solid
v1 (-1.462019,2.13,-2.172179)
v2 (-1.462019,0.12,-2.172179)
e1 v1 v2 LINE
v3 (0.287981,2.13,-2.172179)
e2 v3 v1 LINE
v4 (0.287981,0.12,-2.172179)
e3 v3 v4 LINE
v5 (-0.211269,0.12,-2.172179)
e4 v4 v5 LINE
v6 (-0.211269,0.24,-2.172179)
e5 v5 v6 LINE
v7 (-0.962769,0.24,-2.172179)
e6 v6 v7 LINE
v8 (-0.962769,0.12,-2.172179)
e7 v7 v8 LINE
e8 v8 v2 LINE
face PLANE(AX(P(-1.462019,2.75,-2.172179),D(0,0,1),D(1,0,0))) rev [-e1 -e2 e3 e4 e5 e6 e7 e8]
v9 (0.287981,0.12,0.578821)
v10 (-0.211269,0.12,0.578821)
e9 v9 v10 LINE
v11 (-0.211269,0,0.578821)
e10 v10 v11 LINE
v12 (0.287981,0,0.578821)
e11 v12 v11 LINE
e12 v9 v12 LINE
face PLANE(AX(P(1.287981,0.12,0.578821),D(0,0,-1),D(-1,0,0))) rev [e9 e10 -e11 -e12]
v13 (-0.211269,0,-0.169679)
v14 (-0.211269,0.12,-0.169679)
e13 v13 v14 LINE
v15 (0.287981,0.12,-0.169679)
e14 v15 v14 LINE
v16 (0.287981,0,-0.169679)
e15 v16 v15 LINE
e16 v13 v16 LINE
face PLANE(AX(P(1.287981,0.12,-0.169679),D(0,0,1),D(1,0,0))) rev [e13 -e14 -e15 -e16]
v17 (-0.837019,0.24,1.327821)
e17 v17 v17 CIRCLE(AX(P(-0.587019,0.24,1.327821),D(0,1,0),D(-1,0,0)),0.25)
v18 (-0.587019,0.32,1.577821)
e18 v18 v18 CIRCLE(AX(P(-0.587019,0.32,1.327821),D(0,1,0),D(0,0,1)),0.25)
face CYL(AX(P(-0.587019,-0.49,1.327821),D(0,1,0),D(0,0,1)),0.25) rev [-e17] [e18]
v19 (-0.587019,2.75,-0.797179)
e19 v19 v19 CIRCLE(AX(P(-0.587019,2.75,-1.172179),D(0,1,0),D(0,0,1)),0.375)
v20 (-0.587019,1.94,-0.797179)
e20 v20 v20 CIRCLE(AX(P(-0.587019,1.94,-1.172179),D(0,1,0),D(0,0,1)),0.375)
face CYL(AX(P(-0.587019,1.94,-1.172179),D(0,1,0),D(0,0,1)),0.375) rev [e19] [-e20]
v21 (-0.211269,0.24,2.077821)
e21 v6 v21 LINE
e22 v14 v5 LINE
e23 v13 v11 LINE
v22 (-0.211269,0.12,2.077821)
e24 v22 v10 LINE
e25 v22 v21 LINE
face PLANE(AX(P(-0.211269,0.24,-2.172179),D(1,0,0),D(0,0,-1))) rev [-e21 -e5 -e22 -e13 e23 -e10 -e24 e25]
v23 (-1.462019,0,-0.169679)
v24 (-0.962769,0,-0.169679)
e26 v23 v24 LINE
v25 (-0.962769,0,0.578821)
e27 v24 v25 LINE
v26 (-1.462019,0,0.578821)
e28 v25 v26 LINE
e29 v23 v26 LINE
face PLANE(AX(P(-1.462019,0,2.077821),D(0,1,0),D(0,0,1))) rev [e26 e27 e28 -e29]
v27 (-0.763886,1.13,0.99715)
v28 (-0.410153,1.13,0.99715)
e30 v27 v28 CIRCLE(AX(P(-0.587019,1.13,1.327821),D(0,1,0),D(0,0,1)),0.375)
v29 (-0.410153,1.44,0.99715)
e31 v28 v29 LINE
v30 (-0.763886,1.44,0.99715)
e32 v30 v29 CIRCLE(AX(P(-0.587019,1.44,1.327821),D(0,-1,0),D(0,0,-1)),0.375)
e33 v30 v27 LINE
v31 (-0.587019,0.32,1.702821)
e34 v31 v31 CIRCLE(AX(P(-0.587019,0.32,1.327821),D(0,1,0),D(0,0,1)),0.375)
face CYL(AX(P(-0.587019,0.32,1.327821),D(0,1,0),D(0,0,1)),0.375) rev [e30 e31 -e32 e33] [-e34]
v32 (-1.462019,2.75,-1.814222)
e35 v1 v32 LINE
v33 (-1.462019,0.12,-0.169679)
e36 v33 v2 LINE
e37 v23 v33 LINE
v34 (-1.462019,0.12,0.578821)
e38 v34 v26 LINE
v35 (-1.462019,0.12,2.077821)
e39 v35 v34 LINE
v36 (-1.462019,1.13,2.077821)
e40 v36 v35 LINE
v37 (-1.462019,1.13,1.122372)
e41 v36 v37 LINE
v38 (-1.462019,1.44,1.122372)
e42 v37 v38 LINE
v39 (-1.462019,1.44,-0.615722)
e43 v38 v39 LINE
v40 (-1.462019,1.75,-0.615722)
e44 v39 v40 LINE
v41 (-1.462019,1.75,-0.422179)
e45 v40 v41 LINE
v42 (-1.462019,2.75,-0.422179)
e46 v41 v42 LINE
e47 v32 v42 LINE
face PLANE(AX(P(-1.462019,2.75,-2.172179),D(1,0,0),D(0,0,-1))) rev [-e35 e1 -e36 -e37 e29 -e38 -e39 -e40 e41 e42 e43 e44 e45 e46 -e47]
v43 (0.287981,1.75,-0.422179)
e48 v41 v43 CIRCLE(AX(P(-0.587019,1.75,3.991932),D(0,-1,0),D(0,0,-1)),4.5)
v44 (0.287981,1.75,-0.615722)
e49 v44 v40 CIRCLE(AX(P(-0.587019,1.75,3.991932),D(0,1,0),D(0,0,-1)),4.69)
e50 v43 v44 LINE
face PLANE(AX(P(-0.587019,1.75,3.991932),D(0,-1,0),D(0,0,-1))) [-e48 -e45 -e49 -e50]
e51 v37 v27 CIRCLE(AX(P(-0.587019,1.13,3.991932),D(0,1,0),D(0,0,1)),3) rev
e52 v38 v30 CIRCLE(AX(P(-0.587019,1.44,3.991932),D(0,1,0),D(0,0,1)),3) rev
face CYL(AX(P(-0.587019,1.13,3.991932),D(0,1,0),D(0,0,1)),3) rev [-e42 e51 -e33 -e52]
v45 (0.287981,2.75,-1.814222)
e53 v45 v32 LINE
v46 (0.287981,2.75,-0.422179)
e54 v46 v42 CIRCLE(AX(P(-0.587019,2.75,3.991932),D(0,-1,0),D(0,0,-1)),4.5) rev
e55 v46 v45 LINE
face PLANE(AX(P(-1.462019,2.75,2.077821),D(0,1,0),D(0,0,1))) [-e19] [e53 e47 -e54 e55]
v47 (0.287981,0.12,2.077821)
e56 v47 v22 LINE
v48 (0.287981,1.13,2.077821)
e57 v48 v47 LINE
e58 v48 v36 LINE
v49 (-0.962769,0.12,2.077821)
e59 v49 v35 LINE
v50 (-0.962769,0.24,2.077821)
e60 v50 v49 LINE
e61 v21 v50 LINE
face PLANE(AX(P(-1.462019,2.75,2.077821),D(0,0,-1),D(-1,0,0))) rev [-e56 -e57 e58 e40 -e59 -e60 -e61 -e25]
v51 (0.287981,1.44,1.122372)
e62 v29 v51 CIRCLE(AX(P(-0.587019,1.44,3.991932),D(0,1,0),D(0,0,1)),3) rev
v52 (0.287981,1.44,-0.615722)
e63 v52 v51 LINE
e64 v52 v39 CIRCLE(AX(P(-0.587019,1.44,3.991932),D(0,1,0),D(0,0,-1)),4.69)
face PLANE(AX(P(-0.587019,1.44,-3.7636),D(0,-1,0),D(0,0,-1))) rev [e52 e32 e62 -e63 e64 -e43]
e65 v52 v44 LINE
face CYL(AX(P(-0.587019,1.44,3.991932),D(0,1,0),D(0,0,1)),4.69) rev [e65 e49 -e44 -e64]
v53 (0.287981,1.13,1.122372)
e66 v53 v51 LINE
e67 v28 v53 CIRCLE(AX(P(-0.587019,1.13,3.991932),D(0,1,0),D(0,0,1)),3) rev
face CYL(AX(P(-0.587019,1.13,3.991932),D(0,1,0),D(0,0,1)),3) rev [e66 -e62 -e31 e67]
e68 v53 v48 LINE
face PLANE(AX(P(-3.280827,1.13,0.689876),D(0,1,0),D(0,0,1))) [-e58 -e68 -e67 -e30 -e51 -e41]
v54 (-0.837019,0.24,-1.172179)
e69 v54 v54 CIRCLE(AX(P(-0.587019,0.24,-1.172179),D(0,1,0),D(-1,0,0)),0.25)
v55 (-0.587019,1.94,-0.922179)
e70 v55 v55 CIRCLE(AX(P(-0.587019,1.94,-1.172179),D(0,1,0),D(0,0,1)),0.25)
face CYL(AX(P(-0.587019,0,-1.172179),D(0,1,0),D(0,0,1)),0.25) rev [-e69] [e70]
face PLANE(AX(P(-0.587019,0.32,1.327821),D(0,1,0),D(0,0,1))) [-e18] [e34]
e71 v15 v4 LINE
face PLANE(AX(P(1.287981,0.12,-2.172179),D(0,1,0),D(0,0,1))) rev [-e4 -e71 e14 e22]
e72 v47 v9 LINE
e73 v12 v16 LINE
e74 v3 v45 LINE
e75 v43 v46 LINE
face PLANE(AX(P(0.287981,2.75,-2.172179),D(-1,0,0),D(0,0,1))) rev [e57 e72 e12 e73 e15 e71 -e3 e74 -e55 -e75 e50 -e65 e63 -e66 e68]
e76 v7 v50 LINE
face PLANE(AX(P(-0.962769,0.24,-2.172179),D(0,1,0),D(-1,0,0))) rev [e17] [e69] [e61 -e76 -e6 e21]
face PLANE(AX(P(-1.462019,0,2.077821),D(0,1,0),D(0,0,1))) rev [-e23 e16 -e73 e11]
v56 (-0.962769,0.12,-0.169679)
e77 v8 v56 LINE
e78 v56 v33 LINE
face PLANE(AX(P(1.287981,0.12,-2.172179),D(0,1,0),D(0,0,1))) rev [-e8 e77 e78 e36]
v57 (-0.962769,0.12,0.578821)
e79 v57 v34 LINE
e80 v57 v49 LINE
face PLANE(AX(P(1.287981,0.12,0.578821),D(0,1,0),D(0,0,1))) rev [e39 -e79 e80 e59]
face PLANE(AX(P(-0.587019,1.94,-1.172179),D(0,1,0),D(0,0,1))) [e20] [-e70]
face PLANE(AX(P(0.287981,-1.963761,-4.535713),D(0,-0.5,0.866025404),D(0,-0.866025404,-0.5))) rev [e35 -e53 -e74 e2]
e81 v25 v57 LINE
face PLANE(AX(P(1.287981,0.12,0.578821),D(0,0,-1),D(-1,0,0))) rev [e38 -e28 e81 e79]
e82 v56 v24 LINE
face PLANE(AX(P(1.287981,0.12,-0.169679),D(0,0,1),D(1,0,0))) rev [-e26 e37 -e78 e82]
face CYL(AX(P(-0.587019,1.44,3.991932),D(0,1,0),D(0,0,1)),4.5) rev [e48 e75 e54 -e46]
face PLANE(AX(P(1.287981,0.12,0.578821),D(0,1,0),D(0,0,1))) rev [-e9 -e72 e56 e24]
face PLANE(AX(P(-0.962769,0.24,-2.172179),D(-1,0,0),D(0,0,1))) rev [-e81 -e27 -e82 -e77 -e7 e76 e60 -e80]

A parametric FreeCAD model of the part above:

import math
import FreeCAD as App
import Part
import Sketcher

V = App.Vector
Q = App.Units.Quantity

doc = App.newDocument("Part")
body = doc.addObject("PartDesign::Body", "Body")

sketch1 = doc.addObject("Sketcher::SketchObject", "Sketch")
body.addObject(sketch1)
sketch1.AttachmentSupport = (doc.XZ_Plane, [""])
sketch1.MapMode = "FlatFace"
sketch1.addGeometry(Part.LineSegment(V(-1.5, -2.2, 0), V(-1.5, 2.1, 0)), False)
sketch1.addGeometry(Part.LineSegment(V(-1.5, 2.1, 0), V(0.3, 2.1, 0)), False)
sketch1.addGeometry(Part.LineSegment(V(0.3, 2.1, 0), V(0.3, -2.2, 0)), False)
sketch1.addGeometry(Part.LineSegment(V(0.3, -2.2, 0), V(-1.5, -2.2, 0)), False)
sketch1.addConstraint(Sketcher.Constraint("Coincident", 0, 2, 1, 1))
sketch1.addConstraint(Sketcher.Constraint("Coincident", 1, 2, 2, 1))
sketch1.addConstraint(Sketcher.Constraint("Coincident", 2, 2, 3, 1))
sketch1.addConstraint(Sketcher.Constraint("Coincident", 3, 2, 0, 1))
sketch1.addConstraint(Sketcher.Constraint("Vertical", 0))
sketch1.addConstraint(Sketcher.Constraint("Horizontal", 1))
sketch1.addConstraint(Sketcher.Constraint("Vertical", 2))
sketch1.addConstraint(Sketcher.Constraint("Horizontal", 3))
sketch1.addConstraint(Sketcher.Constraint("DistanceX", 1, 1, 1, 2, Q("1.75 mm")))
sketch1.addConstraint(Sketcher.Constraint("DistanceY", 0, 1, 0, 2, Q("4.25 mm")))
sketch1.addConstraint(Sketcher.Constraint("DistanceX", 0, 2, -1, 1, Q("1.462019 mm")))
sketch1.addConstraint(Sketcher.Constraint("DistanceY", -1, 1, 0, 2, Q("2.077821 mm")))
pad1 = doc.addObject("PartDesign::Pad", "Pad")
body.addObject(pad1)
pad1.Profile = sketch1
pad1.Length = 2.75
pad1.Reversed = True

sketch2 = doc.addObject("Sketcher::SketchObject", "Sketch001")
body.addObject(sketch2)
sketch2.AttachmentSupport = (doc.YZ_Plane, [""])
sketch2.MapMode = "FlatFace"
sketch2.AttachmentOffset = App.Placement(V(0, 0, -1.462019), App.Rotation())
sketch2.addGeometry(Part.LineSegment(V(0.12, -2.17, 0), V(0, -2.17, 0)), False)
sketch2.addGeometry(Part.LineSegment(V(0, -2.17, 0), V(0, -0.17, 0)), False)
sketch2.addGeometry(Part.LineSegment(V(0, -0.17, 0), V(0.12, -0.17, 0)), False)
sketch2.addGeometry(Part.LineSegment(V(0.12, -0.17, 0), V(0.12, -2.17, 0)), False)
sketch2.addConstraint(Sketcher.Constraint("Coincident", 0, 2, 1, 1))
sketch2.addConstraint(Sketcher.Constraint("Coincident", 1, 2, 2, 1))
sketch2.addConstraint(Sketcher.Constraint("Coincident", 2, 2, 3, 1))
sketch2.addConstraint(Sketcher.Constraint("Coincident", 3, 2, 0, 1))
sketch2.addConstraint(Sketcher.Constraint("Horizontal", 0))
sketch2.addConstraint(Sketcher.Constraint("Vertical", 1))
sketch2.addConstraint(Sketcher.Constraint("Horizontal", 2))
sketch2.addConstraint(Sketcher.Constraint("Vertical", 3))
sketch2.addConstraint(Sketcher.Constraint("PointOnObject", 0, 2, -2))
sketch2.addConstraint(Sketcher.Constraint("DistanceX", 0, 2, 0, 1, Q("0.12 mm")))
sketch2.addConstraint(Sketcher.Constraint("DistanceY", 1, 1, 1, 2, Q("2.0025 mm")))
sketch2.addConstraint(Sketcher.Constraint("DistanceY", 0, 2, -1, 1, Q("2.172179 mm")))
pocket1 = doc.addObject("PartDesign::Pocket", "Pocket")
body.addObject(pocket1)
pocket1.Profile = sketch2
pocket1.Length = 2.75
pocket1.Reversed = True

sketch3 = doc.addObject("Sketcher::SketchObject", "Sketch002")
body.addObject(sketch3)
sketch3.AttachmentSupport = (doc.YZ_Plane, [""])
sketch3.MapMode = "FlatFace"
sketch3.AttachmentOffset = App.Placement(V(0, 0, -1.462019), App.Rotation())
sketch3.addGeometry(Part.LineSegment(V(0.12, 0.58, 0), V(0, 0.58, 0)), False)
sketch3.addGeometry(Part.LineSegment(V(0, 0.58, 0), V(0, 2.08, 0)), False)
sketch3.addGeometry(Part.LineSegment(V(0, 2.08, 0), V(0.12, 2.08, 0)), False)
sketch3.addGeometry(Part.LineSegment(V(0.12, 2.08, 0), V(0.12, 0.58, 0)), False)
sketch3.addConstraint(Sketcher.Constraint("Coincident", 0, 2, 1, 1))
sketch3.addConstraint(Sketcher.Constraint("Coincident", 1, 2, 2, 1))
sketch3.addConstraint(Sketcher.Constraint("Coincident", 2, 2, 3, 1))
sketch3.addConstraint(Sketcher.Constraint("Coincident", 3, 2, 0, 1))
sketch3.addConstraint(Sketcher.Constraint("Horizontal", 0))
sketch3.addConstraint(Sketcher.Constraint("Vertical", 1))
sketch3.addConstraint(Sketcher.Constraint("Horizontal", 2))
sketch3.addConstraint(Sketcher.Constraint("Vertical", 3))
sketch3.addConstraint(Sketcher.Constraint("PointOnObject", 0, 2, -2))
sketch3.addConstraint(Sketcher.Constraint("DistanceX", 0, 2, 0, 1, Q("0.12 mm")))
sketch3.addConstraint(Sketcher.Constraint("DistanceY", 1, 1, 1, 2, Q("1.499 mm")))
sketch3.addConstraint(Sketcher.Constraint("DistanceY", -1, 1, 0, 2, Q("0.578821 mm")))
pocket2 = doc.addObject("PartDesign::Pocket", "Pocket001")
body.addObject(pocket2)
pocket2.Profile = sketch3
pocket2.Length = 2.75
pocket2.Reversed = True

sketch4 = doc.addObject("Sketcher::SketchObject", "Sketch003")
body.addObject(sketch4)
sketch4.AttachmentSupport = (doc.XY_Plane, [""])
sketch4.MapMode = "FlatFace"
sketch4.AttachmentOffset = App.Placement(V(0, 0, 2.077821), App.Rotation())
sketch4.addGeometry(Part.LineSegment(V(-0.96, 0.24, 0), V(-0.96, 0, 0)), False)
sketch4.addGeometry(Part.LineSegment(V(-0.96, 0, 0), V(-0.21, 0, 0)), False)
sketch4.addGeometry(Part.LineSegment(V(-0.21, 0, 0), V(-0.21, 0.24, 0)), False)
sketch4.addGeometry(Part.LineSegment(V(-0.21, 0.24, 0), V(-0.96, 0.24, 0)), False)
sketch4.addConstraint(Sketcher.Constraint("Coincident", 0, 2, 1, 1))
sketch4.addConstraint(Sketcher.Constraint("Coincident", 1, 2, 2, 1))
sketch4.addConstraint(Sketcher.Constraint("Coincident", 2, 2, 3, 1))
sketch4.addConstraint(Sketcher.Constraint("Coincident", 3, 2, 0, 1))
sketch4.addConstraint(Sketcher.Constraint("Vertical", 0))
sketch4.addConstraint(Sketcher.Constraint("Horizontal", 1))
sketch4.addConstraint(Sketcher.Constraint("Vertical", 2))
sketch4.addConstraint(Sketcher.Constraint("Horizontal", 3))
sketch4.addConstraint(Sketcher.Constraint("PointOnObject", 0, 2, -1))
sketch4.addConstraint(Sketcher.Constraint("DistanceY", 0, 2, 0, 1, Q("0.24 mm")))
sketch4.addConstraint(Sketcher.Constraint("DistanceX", 1, 1, 1, 2, Q("0.7515 mm")))
sketch4.addConstraint(Sketcher.Constraint("DistanceX", 0, 2, -1, 1, Q("0.962769 mm")))
pocket3 = doc.addObject("PartDesign::Pocket", "Pocket002")
body.addObject(pocket3)
pocket3.Profile = sketch4
pocket3.Type = "ThroughAll"

sketch5 = doc.addObject("Sketcher::SketchObject", "Sketch004")
body.addObject(sketch5)
sketch5.AttachmentSupport = (doc.XZ_Plane, [""])
sketch5.MapMode = "FlatFace"
sketch5.AttachmentOffset = App.Placement(V(0, 0, -2.75), App.Rotation())
sketch5.addGeometry(Part.ArcOfCircle(Part.Circle(V(-0.6, 4, 0), V(0, 0, 1), 4.5), math.radians(-101), math.radians(-79)), False)
sketch5.addGeometry(Part.LineSegment(V(-1.5, -0.4, 0), V(-1.5, 2.1, 0)), False)
sketch5.addGeometry(Part.LineSegment(V(-1.5, 2.1, 0), V(0.3, 2.1, 0)), False)
sketch5.addGeometry(Part.LineSegment(V(0.3, 2.1, 0), V(0.3, -0.4, 0)), False)
sketch5.addConstraint(Sketcher.Constraint("Coincident", 0, 1, 1, 1))
sketch5.addConstraint(Sketcher.Constraint("Coincident", 1, 2, 2, 1))
sketch5.addConstraint(Sketcher.Constraint("Coincident", 2, 2, 3, 1))
sketch5.addConstraint(Sketcher.Constraint("Coincident", 3, 2, 0, 2))
sketch5.addConstraint(Sketcher.Constraint("Vertical", 1))
sketch5.addConstraint(Sketcher.Constraint("Horizontal", 2))
sketch5.addConstraint(Sketcher.Constraint("Vertical", 3))
sketch5.addConstraint(Sketcher.Constraint("Horizontal", 0, 1, 3, 2))
sketch5.addConstraint(Sketcher.Constraint("Radius", 0, Q("4.5 mm")))
sketch5.addConstraint(Sketcher.Constraint("DistanceY", 1, 1, 1, 2, Q("2.5 mm")))
sketch5.addConstraint(Sketcher.Constraint("DistanceX", 2, 1, 2, 2, Q("1.75 mm")))
sketch5.addConstraint(Sketcher.Constraint("DistanceX", 0, 3, -1, 1, Q("0.587019 mm")))
sketch5.addConstraint(Sketcher.Constraint("DistanceY", -1, 1, 0, 3, Q("3.991932 mm")))
pocket4 = doc.addObject("PartDesign::Pocket", "Pocket003")
body.addObject(pocket4)
pocket4.Profile = sketch5
pocket4.Length = 1.31
pocket4.Reversed = True

sketch6 = doc.addObject("Sketcher::SketchObject", "Sketch005")
body.addObject(sketch6)
sketch6.AttachmentSupport = (doc.XZ_Plane, [""])
sketch6.MapMode = "FlatFace"
sketch6.AttachmentOffset = App.Placement(V(0, 0, -1.75), App.Rotation())
sketch6.addGeometry(Part.LineSegment(V(-1.46, -0.62, 0), V(-1.46, -0.42, 0)), False)
sketch6.addGeometry(Part.ArcOfCircle(Part.Circle(V(-0.59, 3.99, 0), V(0, 0, 1), 4.5), math.radians(-101), math.radians(-79)), False)
sketch6.addGeometry(Part.LineSegment(V(0.29, -0.42, 0), V(0.29, -0.62, 0)), False)
sketch6.addGeometry(Part.ArcOfCircle(Part.Circle(V(-0.59, 3.99, 0), V(0, 0, 1), 4.69), math.radians(-101), math.radians(-79)), False)
sketch6.addConstraint(Sketcher.Constraint("Coincident", 0, 2, 1, 1))
sketch6.addConstraint(Sketcher.Constraint("Coincident", 1, 2, 2, 1))
sketch6.addConstraint(Sketcher.Constraint("Coincident", 2, 2, 3, 2))
sketch6.addConstraint(Sketcher.Constraint("Coincident", 3, 1, 0, 1))
sketch6.addConstraint(Sketcher.Constraint("Vertical", 0))
sketch6.addConstraint(Sketcher.Constraint("Vertical", 2))
sketch6.addConstraint(Sketcher.Constraint("Coincident", 3, 3, 1, 3))
sketch6.addConstraint(Sketcher.Constraint("Horizontal", 0, 2, 1, 2))
sketch6.addConstraint(Sketcher.Constraint("Radius", 1, Q("4.5 mm")))
sketch6.addConstraint(Sketcher.Constraint("Radius", 3, Q("4.69 mm")))
sketch6.addConstraint(Sketcher.Constraint("DistanceX", 0, 2, 1, 2, Q("1.75 mm")))
sketch6.addConstraint(Sketcher.Constraint("DistanceX", 1, 3, -1, 1, Q("0.587019 mm")))
sketch6.addConstraint(Sketcher.Constraint("DistanceY", -1, 1, 1, 3, Q("3.991932 mm")))
pocket5 = doc.addObject("PartDesign::Pocket", "Pocket004")
body.addObject(pocket5)
pocket5.Profile = sketch6
pocket5.Length = 0.31
pocket5.Reversed = True

sketch7 = doc.addObject("Sketcher::SketchObject", "Sketch006")
body.addObject(sketch7)
sketch7.AttachmentSupport = (doc.XZ_Plane, [""])
sketch7.MapMode = "FlatFace"
sketch7.AttachmentOffset = App.Placement(V(0, 0, -1.44), App.Rotation())
sketch7.addGeometry(Part.ArcOfCircle(Part.Circle(V(-0.6, 4, 0), V(0, 0, 1), 3), math.radians(-107), math.radians(-73)), False)
sketch7.addGeometry(Part.LineSegment(V(-1.5, 1.1, 0), V(-1.5, 2.1, 0)), False)
sketch7.addGeometry(Part.LineSegment(V(-1.5, 2.1, 0), V(0.3, 2.1, 0)), False)
sketch7.addGeometry(Part.LineSegment(V(0.3, 2.1, 0), V(0.3, 1.1, 0)), False)
sketch7.addConstraint(Sketcher.Constraint("Coincident", 0, 1, 1, 1))
sketch7.addConstraint(Sketcher.Constraint("Coincident", 1, 2, 2, 1))
sketch7.addConstraint(Sketcher.Constraint("Coincident", 2, 2, 3, 1))
sketch7.addConstraint(Sketcher.Constraint("Coincident", 3, 2, 0, 2))
sketch7.addConstraint(Sketcher.Constraint("Vertical", 1))
sketch7.addConstraint(Sketcher.Constraint("Horizontal", 2))
sketch7.addConstraint(Sketcher.Constraint("Vertical", 3))
sketch7.addConstraint(Sketcher.Constraint("Horizontal", 0, 1, 3, 2))
sketch7.addConstraint(Sketcher.Constraint("Radius", 0, Q("3 mm")))
sketch7.addConstraint(Sketcher.Constraint("DistanceX", 2, 1, 2, 2, Q("1.75 mm")))
sketch7.addConstraint(Sketcher.Constraint("DistanceY", 1, 1, 1, 2, Q("0.955449 mm")))
sketch7.addConstraint(Sketcher.Constraint("DistanceX", 0, 3, -1, 1, Q("0.587019 mm")))
sketch7.addConstraint(Sketcher.Constraint("DistanceY", -1, 1, 0, 3, Q("3.991932 mm")))
pocket6 = doc.addObject("PartDesign::Pocket", "Pocket005")
body.addObject(pocket6)
pocket6.Profile = sketch7
pocket6.Length = 0.31
pocket6.Reversed = True

sketch8 = doc.addObject("Sketcher::SketchObject", "Sketch007")
body.addObject(sketch8)
sketch8.AttachmentSupport = (doc.XZ_Plane, [""])
sketch8.MapMode = "FlatFace"
sketch8.AttachmentOffset = App.Placement(V(0, 0, -1.13), App.Rotation())
sketch8.addGeometry(Part.Circle(V(-0.59, 1.33, 0), V(0, 0, 1), 0.38), False)
sketch8.addConstraint(Sketcher.Constraint("Diameter", 0, Q("0.75 mm")))
sketch8.addConstraint(Sketcher.Constraint("DistanceX", 0, 3, -1, 1, Q("0.587019 mm")))
sketch8.addConstraint(Sketcher.Constraint("DistanceY", -1, 1, 0, 3, Q("1.327821 mm")))
pocket7 = doc.addObject("PartDesign::Pocket", "Pocket006")
body.addObject(pocket7)
pocket7.Profile = sketch8
pocket7.Type = "TwoLengths"
pocket7.Length = 2.62
pocket7.Length2 = 0.81

sketch9 = doc.addObject("Sketcher::SketchObject", "Sketch008")
body.addObject(sketch9)
sketch9.AttachmentSupport = (doc.XZ_Plane, [""])
sketch9.MapMode = "FlatFace"
sketch9.AttachmentOffset = App.Placement(V(0, 0, -0.32), App.Rotation())
sketch9.addGeometry(Part.Circle(V(-0.59, 1.33, 0), V(0, 0, 1), 0.25), False)
sketch9.addConstraint(Sketcher.Constraint("Diameter", 0, Q("0.5 mm")))
sketch9.addConstraint(Sketcher.Constraint("DistanceX", 0, 3, -1, 1, Q("0.587019 mm")))
sketch9.addConstraint(Sketcher.Constraint("DistanceY", -1, 1, 0, 3, Q("1.327821 mm")))
pocket8 = doc.addObject("PartDesign::Pocket", "Pocket007")
body.addObject(pocket8)
pocket8.Profile = sketch9
pocket8.Length = 0.81
pocket8.Reversed = True

sketch10 = doc.addObject("Sketcher::SketchObject", "Sketch009")
body.addObject(sketch10)
sketch10.AttachmentSupport = (doc.XZ_Plane, [""])
sketch10.MapMode = "FlatFace"
sketch10.AttachmentOffset = App.Placement(V(0, 0, -2.75), App.Rotation())
sketch10.addGeometry(Part.Circle(V(-0.59, -1.17, 0), V(0, 0, 1), 0.38), False)
sketch10.addGeometry(Part.Circle(V(-0.59, 1.33, 0), V(0, 0, 1), 0.25), False)
sketch10.addConstraint(Sketcher.Constraint("Vertical", 0, 3, 1, 3))
sketch10.addConstraint(Sketcher.Constraint("Diameter", 1, Q("0.5 mm")))
sketch10.addConstraint(Sketcher.Constraint("Diameter", 0, Q("0.75 mm")))
sketch10.addConstraint(Sketcher.Constraint("DistanceY", 0, 3, 1, 3, Q("2.5 mm")))
sketch10.addConstraint(Sketcher.Constraint("DistanceX", 0, 3, -1, 1, Q("0.587019 mm")))
sketch10.addConstraint(Sketcher.Constraint("DistanceY", 0, 3, -1, 1, Q("1.172179 mm")))
pocket9 = doc.addObject("PartDesign::Pocket", "Pocket008")
body.addObject(pocket9)
pocket9.Profile = sketch10
pocket9.Length = 0.81
pocket9.Reversed = True

sketch11 = doc.addObject("Sketcher::SketchObject", "Sketch010")
body.addObject(sketch11)
sketch11.AttachmentSupport = (doc.XZ_Plane, [""])
sketch11.MapMode = "FlatFace"
sketch11.AttachmentOffset = App.Placement(V(0, 0, -1.94), App.Rotation())
sketch11.addGeometry(Part.Circle(V(-0.59, -1.17, 0), V(0, 0, 1), 0.25), False)
sketch11.addConstraint(Sketcher.Constraint("Diameter", 0, Q("0.5 mm")))
sketch11.addConstraint(Sketcher.Constraint("DistanceX", 0, 3, -1, 1, Q("0.587019 mm")))
sketch11.addConstraint(Sketcher.Constraint("DistanceY", 0, 3, -1, 1, Q("1.172179 mm")))
pocket10 = doc.addObject("PartDesign::Pocket", "Pocket009")
body.addObject(pocket10)
pocket10.Profile = sketch11
pocket10.Type = "ThroughAll"
pocket10.Reversed = True

sketch12 = doc.addObject("Sketcher::SketchObject", "Sketch011")
body.addObject(sketch12)
sketch12.AttachmentSupport = (doc.YZ_Plane, [""])
sketch12.MapMode = "FlatFace"
sketch12.AttachmentOffset = App.Placement(V(0, 0, -1.462019), App.Rotation())
sketch12.addGeometry(Part.LineSegment(V(2.75, -2.17, 0), V(2.13, -2.17, 0)), False)
sketch12.addGeometry(Part.LineSegment(V(2.13, -2.17, 0), V(2.75, -1.81, 0)), False)
sketch12.addGeometry(Part.LineSegment(V(2.75, -1.81, 0), V(2.75, -2.17, 0)), False)
sketch12.addConstraint(Sketcher.Constraint("Coincident", 0, 2, 1, 1))
sketch12.addConstraint(Sketcher.Constraint("Coincident", 1, 2, 2, 1))
sketch12.addConstraint(Sketcher.Constraint("Coincident", 2, 2, 0, 1))
sketch12.addConstraint(Sketcher.Constraint("Horizontal", 0))
sketch12.addConstraint(Sketcher.Constraint("Vertical", 2))
sketch12.addConstraint(Sketcher.Constraint("Angle", 1, Q("30 deg")))
sketch12.addConstraint(Sketcher.Constraint("DistanceX", 0, 2, 0, 1, Q("0.62 mm")))
sketch12.addConstraint(Sketcher.Constraint("DistanceX", -1, 1, 0, 2, Q("2.13 mm")))
sketch12.addConstraint(Sketcher.Constraint("DistanceY", 0, 2, -1, 1, Q("2.172179 mm")))
pocket11 = doc.addObject("PartDesign::Pocket", "Pocket010")
body.addObject(pocket11)
pocket11.Profile = sketch12
pocket11.Type = "ThroughAll"
pocket11.Reversed = True

doc.recompute()
